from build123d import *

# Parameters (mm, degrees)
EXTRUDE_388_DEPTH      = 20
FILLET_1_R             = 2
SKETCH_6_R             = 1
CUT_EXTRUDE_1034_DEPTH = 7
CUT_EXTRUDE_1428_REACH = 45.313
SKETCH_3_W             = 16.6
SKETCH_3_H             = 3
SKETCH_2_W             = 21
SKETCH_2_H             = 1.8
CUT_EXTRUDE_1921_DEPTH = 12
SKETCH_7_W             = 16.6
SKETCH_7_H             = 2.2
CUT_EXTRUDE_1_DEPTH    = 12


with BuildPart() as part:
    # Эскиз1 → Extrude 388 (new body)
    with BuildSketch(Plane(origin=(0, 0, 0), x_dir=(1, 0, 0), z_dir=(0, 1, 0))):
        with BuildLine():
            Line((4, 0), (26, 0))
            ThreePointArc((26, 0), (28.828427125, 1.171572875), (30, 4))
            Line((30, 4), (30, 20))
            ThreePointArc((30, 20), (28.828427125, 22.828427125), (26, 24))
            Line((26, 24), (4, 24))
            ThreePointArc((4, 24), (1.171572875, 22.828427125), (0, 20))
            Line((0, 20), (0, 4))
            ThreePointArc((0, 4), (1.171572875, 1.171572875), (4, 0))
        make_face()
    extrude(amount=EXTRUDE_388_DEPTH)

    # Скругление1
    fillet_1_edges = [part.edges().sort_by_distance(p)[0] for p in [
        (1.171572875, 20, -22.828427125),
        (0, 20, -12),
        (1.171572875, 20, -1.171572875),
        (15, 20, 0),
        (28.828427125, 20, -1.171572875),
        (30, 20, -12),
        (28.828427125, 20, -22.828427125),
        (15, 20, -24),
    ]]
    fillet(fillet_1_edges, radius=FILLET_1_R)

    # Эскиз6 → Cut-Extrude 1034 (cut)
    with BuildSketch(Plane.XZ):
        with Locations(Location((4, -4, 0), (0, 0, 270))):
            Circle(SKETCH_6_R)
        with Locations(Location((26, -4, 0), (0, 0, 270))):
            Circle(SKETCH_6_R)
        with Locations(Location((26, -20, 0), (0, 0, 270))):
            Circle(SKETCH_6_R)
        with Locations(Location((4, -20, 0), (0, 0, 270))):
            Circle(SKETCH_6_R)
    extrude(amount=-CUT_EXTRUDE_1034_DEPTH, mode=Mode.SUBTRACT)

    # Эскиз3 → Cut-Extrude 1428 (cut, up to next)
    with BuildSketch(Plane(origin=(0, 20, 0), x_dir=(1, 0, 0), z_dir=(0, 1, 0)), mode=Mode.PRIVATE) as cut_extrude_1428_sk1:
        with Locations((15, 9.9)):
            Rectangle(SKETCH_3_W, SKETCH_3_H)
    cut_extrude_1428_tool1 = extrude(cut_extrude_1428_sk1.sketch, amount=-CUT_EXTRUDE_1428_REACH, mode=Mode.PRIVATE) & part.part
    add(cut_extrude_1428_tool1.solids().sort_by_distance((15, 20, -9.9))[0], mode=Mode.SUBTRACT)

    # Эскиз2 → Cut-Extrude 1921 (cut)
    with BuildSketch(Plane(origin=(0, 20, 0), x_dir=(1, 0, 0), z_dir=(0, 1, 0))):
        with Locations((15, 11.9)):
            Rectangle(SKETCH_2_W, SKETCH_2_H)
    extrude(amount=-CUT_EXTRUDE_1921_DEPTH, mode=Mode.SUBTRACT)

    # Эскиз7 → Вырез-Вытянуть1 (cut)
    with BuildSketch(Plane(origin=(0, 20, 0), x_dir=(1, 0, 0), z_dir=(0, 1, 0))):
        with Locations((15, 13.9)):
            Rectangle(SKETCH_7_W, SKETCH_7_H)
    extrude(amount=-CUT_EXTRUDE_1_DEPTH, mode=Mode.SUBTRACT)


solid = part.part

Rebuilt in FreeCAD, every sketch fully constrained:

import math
import FreeCAD as App
import Part
import Sketcher


def edges_at(feature, points):
    """Names of the edges that pass closest to the given points."""
    edges = feature.Shape.Edges
    near = lambda p: min(range(len(edges)), key=lambda i: edges[i].distToShape(Part.Vertex(*p))[0])
    return sorted({f"Edge{near(p) + 1}" for p in points})


def add_polygon(sketch, points):
    """Adds a closed chain of lines whose ends are joined by coincident constraints."""
    first, n = sketch.GeometryCount, len(points)
    for a, b in zip(points, points[1:] + points[:1]):
        sketch.addGeometry(Part.LineSegment(App.Vector(*a, 0), App.Vector(*b, 0)), False)
    for i in range(n):
        sketch.addConstraint(Sketcher.Constraint("Coincident", first + i, 2, first + (i + 1) % n, 1))

doc = App.newDocument("Part")
params = doc.addObject("Spreadsheet::Sheet", "Params")
for row, (alias, value) in enumerate([
    ("sketch1_radius", "4 mm"),
    ("sketch1_width", "22 mm"),
    ("sketch1_height", "16 mm"),
    ("pad1_length", "20 mm"),
    ("fillet_radius", "2 mm"),
    ("sketch2_diameter", "2 mm"),
    ("pocket1_length", "7 mm"),
    ("sketch3_height", "3 mm"),
    ("sketch3_width", "16.6 mm"),
    ("sketch4_width", "21 mm"),
    ("sketch4_height", "1.8 mm"),
    ("pocket3_length", "12 mm"),
    ("sketch5_width", "16.6 mm"),
    ("sketch5_height", "2.2 mm"),
    ("pocket4_length", "12 mm"),
], start=1):
    params.set(f"A{row}", alias)
    params.set(f"B{row}", "=" + value)
    params.setAlias(f"B{row}", alias)

body = doc.addObject("PartDesign::Body", "Body")

sketch1 = body.newObject("Sketcher::SketchObject", "Sketch")
sketch1.AttachmentSupport = (doc.getObject("XZ_Plane"), [""])
sketch1.MapMode = "FlatFace"
sketch1.addGeometry([
    Part.LineSegment(App.Vector(4, 0, 0), App.Vector(26, 0, 0)),
    Part.ArcOfCircle(Part.Circle(App.Vector(26, -4, 0), App.Vector(0, 0, 1), 4), math.radians(0), math.radians(90)),
    Part.LineSegment(App.Vector(30, -4, 0), App.Vector(30, -20, 0)),
    Part.ArcOfCircle(Part.Circle(App.Vector(26, -20, 0), App.Vector(0, 0, 1), 4), math.radians(-90), math.radians(0)),
    Part.LineSegment(App.Vector(26, -24, 0), App.Vector(4, -24, 0)),
    Part.ArcOfCircle(Part.Circle(App.Vector(4, -20, 0), App.Vector(0, 0, 1), 4), math.radians(180), math.radians(270)),
    Part.LineSegment(App.Vector(0, -20, 0), App.Vector(0, -4, 0)),
    Part.ArcOfCircle(Part.Circle(App.Vector(4, -4, 0), App.Vector(0, 0, 1), 4), math.radians(90), math.radians(180)),
], False)
sketch1.addConstraint([
    Sketcher.Constraint("Tangent", 0, 2, 1, 2),
    Sketcher.Constraint("Tangent", 1, 1, 2, 1),
    Sketcher.Constraint("Tangent", 2, 2, 3, 2),
    Sketcher.Constraint("Tangent", 3, 1, 4, 1),
    Sketcher.Constraint("Tangent", 4, 2, 5, 2),
    Sketcher.Constraint("Tangent", 5, 1, 6, 1),
    Sketcher.Constraint("Tangent", 6, 2, 7, 2),
    Sketcher.Constraint("Tangent", 7, 1, 0, 1),
    Sketcher.Constraint("Horizontal", 0),
    Sketcher.Constraint("Vertical", 2),
    Sketcher.Constraint("Horizontal", 4),
    Sketcher.Constraint("Vertical", 6),
    Sketcher.Constraint("Equal", 1, 3),
    Sketcher.Constraint("Equal", 3, 5),
    Sketcher.Constraint("Equal", 5, 7),
    Sketcher.Constraint("PointOnObject", 0, 2, -1),
    Sketcher.Constraint("PointOnObject", 5, 1, -2),
    Sketcher.Constraint("Radius", 1, 4.0),
    Sketcher.Constraint("DistanceX", 0, 1, 0, 2, 22.0),
    Sketcher.Constraint("DistanceY", 2, 2, 2, 1, 16.0),
])
sketch1.setExpression("Constraints[17]", "Params.sketch1_radius")
sketch1.setExpression("Constraints[18]", "Params.sketch1_width")
sketch1.setExpression("Constraints[19]", "Params.sketch1_height")
pad1 = body.newObject("PartDesign::Pad", "Pad")
pad1.Profile = sketch1
pad1.setExpression("Length", "Params.pad1_length")
pad1.Reversed = True
doc.recompute()

fillet = body.newObject("PartDesign::Fillet", "Fillet")
fillet.Base = (pad1, edges_at(pad1, [
    (1.172, 20, -22.828),
    (0, 20, -12),
    (1.172, 20, -1.172),
    (15, 20, 0),
    (28.828, 20, -1.172),
    (30, 20, -12),
    (28.828, 20, -22.828),
    (15, 20, -24),
]))
fillet.setExpression("Radius", "Params.fillet_radius")

sketch2 = body.newObject("Sketcher::SketchObject", "Sketch001")
sketch2.AttachmentSupport = (doc.getObject("XZ_Plane"), [""])
sketch2.MapMode = "FlatFace"
sketch2.addGeometry([
    Part.Circle(App.Vector(4, -4, 0), App.Vector(0, 0, 1), 1),
    Part.Circle(App.Vector(26, -4, 0), App.Vector(0, 0, 1), 1),
    Part.Circle(App.Vector(26, -20, 0), App.Vector(0, 0, 1), 1),
    Part.Circle(App.Vector(4, -20, 0), App.Vector(0, 0, 1), 1),
], False)
sketch2.addConstraint([
    Sketcher.Constraint("Equal", 0, 1),
    Sketcher.Constraint("Equal", 1, 2),
    Sketcher.Constraint("Equal", 2, 3),
    Sketcher.Constraint("Horizontal", 0, 3, 1, 3),
    Sketcher.Constraint("Horizontal", 2, 3, 3, 3),
    Sketcher.Constraint("Vertical", 1, 3, 2, 3),
    Sketcher.Constraint("Vertical", 0, 3, 3, 3),
    Sketcher.Constraint("Diameter", 0, 2.0),
    Sketcher.Constraint("DistanceX", -1, 1, 0, 3, 4.0),
    Sketcher.Constraint("DistanceY", 0, 3, -1, 1, 4.0),
    Sketcher.Constraint("DistanceX", -1, 1, 1, 3, 26.0),
    Sketcher.Constraint("DistanceY", 2, 3, -1, 1, 20.0),
])
sketch2.setExpression("Constraints[7]", "Params.sketch2_diameter")
pocket1 = body.newObject("PartDesign::Pocket", "Pocket")
pocket1.Profile = sketch2
pocket1.setExpression("Length", "Params.pocket1_length")

sketch3 = body.newObject("Sketcher::SketchObject", "Sketch002")
sketch3.AttachmentSupport = (doc.getObject("XZ_Plane"), [""])
sketch3.MapMode = "FlatFace"
sketch3.AttachmentOffset = App.Placement(App.Vector(0, 0, -20), App.Rotation())
add_polygon(sketch3, [(6.7, -11.4), (6.7, -8.4), (23.3, -8.4), (23.3, -11.4)])
sketch3.addConstraint([
    Sketcher.Constraint("Vertical", 0),
    Sketcher.Constraint("Horizontal", 1),
    Sketcher.Constraint("Vertical", 2),
    Sketcher.Constraint("Horizontal", 3),
    Sketcher.Constraint("DistanceY", 0, 1, 0, 2, 3.0),
    Sketcher.Constraint("DistanceX", 1, 1, 1, 2, 16.6),
    Sketcher.Constraint("DistanceX", -1, 1, 0, 2, 6.7),
    Sketcher.Constraint("DistanceY", 0, 2, -1, 1, 8.4),
])
sketch3.setExpression("Constraints[8]", "Params.sketch3_height")
sketch3.setExpression("Constraints[9]", "Params.sketch3_width")
pocket2 = body.newObject("PartDesign::Pocket", "Pocket001")
pocket2.Profile = sketch3
pocket2.Type = "UpToFirst"
pocket2.Reversed = True

sketch4 = body.newObject("Sketcher::SketchObject", "Sketch003")
sketch4.AttachmentSupport = (doc.getObject("XZ_Plane"), [""])
sketch4.MapMode = "FlatFace"
sketch4.AttachmentOffset = App.Placement(App.Vector(0, 0, -20), App.Rotation())
add_polygon(sketch4, [(4.5, -12.8), (4.5, -11), (25.5, -11), (25.5, -12.8)])
sketch4.addConstraint([
    Sketcher.Constraint("Vertical", 0),
    Sketcher.Constraint("Horizontal", 1),
    Sketcher.Constraint("Vertical", 2),
    Sketcher.Constraint("Horizontal", 3),
    Sketcher.Constraint("DistanceX", 1, 1, 1, 2, 21.0),
    Sketcher.Constraint("DistanceY", 0, 1, 0, 2, 1.8),
    Sketcher.Constraint("DistanceY", 0, 2, -1, 1, 11.0),
    Sketcher.Constraint("DistanceX", -1, 1, 0, 2, 4.5),
])
sketch4.setExpression("Constraints[8]", "Params.sketch4_width")
sketch4.setExpression("Constraints[9]", "Params.sketch4_height")
pocket3 = body.newObject("PartDesign::Pocket", "Pocket002")
pocket3.Profile = sketch4
pocket3.setExpression("Length", "Params.pocket3_length")
pocket3.Reversed = True

sketch5 = body.newObject("Sketcher::SketchObject", "Sketch004")
sketch5.AttachmentSupport = (doc.getObject("XZ_Plane"), [""])
sketch5.MapMode = "FlatFace"
sketch5.AttachmentOffset = App.Placement(App.Vector(0, 0, -20), App.Rotation())
add_polygon(sketch5, [(6.7, -15), (6.7, -12.8), (23.3, -12.8), (23.3, -15)])
sketch5.addConstraint([
    Sketcher.Constraint("Vertical", 0),
    Sketcher.Constraint("Horizontal", 1),
    Sketcher.Constraint("Vertical", 2),
    Sketcher.Constraint("Horizontal", 3),
    Sketcher.Constraint("DistanceX", 1, 1, 1, 2, 16.6),
    Sketcher.Constraint("DistanceY", 0, 1, 0, 2, 2.2),
    Sketcher.Constraint("DistanceY", 2, 2, -1, 1, 15.0),
    Sketcher.Constraint("DistanceX", -1, 1, 0, 2, 6.7),
])
sketch5.setExpression("Constraints[8]", "Params.sketch5_width")
sketch5.setExpression("Constraints[9]", "Params.sketch5_height")
pocket4 = body.newObject("PartDesign::Pocket", "Pocket003")
pocket4.Profile = sketch5
pocket4.setExpression("Length", "Params.pocket4_length")
pocket4.Reversed = True

doc.recompute()
